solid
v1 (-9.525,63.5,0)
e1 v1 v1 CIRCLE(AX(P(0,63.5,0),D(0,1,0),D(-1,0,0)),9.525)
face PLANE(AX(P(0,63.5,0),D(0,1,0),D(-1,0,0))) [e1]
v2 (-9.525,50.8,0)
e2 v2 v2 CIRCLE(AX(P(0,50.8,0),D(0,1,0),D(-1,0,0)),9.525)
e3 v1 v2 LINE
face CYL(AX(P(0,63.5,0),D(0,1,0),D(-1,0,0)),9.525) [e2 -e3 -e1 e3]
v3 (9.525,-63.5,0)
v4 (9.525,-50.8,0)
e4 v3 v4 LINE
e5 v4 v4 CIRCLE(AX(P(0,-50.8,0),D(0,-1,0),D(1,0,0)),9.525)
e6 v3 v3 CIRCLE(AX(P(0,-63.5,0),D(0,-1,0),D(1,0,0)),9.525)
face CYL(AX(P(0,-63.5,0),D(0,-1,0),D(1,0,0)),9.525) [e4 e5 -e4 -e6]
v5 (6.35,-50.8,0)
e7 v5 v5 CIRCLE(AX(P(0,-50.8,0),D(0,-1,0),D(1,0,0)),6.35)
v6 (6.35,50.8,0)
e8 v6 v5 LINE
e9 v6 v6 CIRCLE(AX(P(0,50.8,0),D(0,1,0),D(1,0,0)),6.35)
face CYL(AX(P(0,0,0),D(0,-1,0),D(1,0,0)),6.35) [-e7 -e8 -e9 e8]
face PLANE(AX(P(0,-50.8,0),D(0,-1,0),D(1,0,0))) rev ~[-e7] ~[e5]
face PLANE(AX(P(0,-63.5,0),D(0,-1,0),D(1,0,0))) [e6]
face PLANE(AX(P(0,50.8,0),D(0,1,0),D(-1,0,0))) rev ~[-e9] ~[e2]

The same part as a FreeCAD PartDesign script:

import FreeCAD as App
import Part
import Sketcher
from FreeCAD import Vector
Q = App.Units.Quantity

doc = App.newDocument("Part")
body = doc.addObject("PartDesign::Body", "Body")

# Sketch on XZ plane
sketch1 = body.newObject("Sketcher::SketchObject", "Sketch")
sketch1.AttachmentSupport = (doc.getObject("XZ_Plane"), [""])
sketch1.MapMode = "FlatFace"
sketch1.addGeometry(Part.Circle(Vector(0, 0, 0), Vector(0, 0, 1), 6), False)
sketch1.addConstraint([
    Sketcher.Constraint("Coincident", 0, 3, -1, 1),
    Sketcher.Constraint("Diameter", 0, Q("0.5 in")),
])
pad1 = body.newObject("PartDesign::Pad", "Pad")
pad1.Profile = sketch1
pad1.Length = Q("5 in")
pad1.Midplane = True

# Sketch on XZ plane
sketch2 = body.newObject("Sketcher::SketchObject", "Sketch001")
sketch2.AttachmentSupport = (doc.getObject("XZ_Plane"), [""])
sketch2.MapMode = "FlatFace"
sketch2.AttachmentOffset = App.Placement(Vector(0, 0, -2.5 * 25.4), App.Rotation())
sketch2.addGeometry([
    Part.Circle(Vector(0, 0, 0), Vector(0, 0, 1), 10),
    Part.Circle(Vector(0, 0, 0), Vector(0, 0, 1), 6),
], False)
sketch2.addConstraint([
    Sketcher.Constraint("Coincident", 0, 3, -1, 1),
    Sketcher.Constraint("Coincident", 1, 3, -1, 1),
    Sketcher.Constraint("Diameter", 1, Q("0.5 in")),
    Sketcher.Constraint("Diameter", 0, Q("0.75 in")),
])
pad2 = body.newObject("PartDesign::Pad", "Pad001")
pad2.Profile = sketch2
pad2.Length = Q("0.5 in")

# Sketch on XZ plane
sketch3 = body.newObject("Sketcher::SketchObject", "Sketch002")
sketch3.AttachmentSupport = (doc.getObject("XZ_Plane"), [""])
sketch3.MapMode = "FlatFace"
sketch3.AttachmentOffset = App.Placement(Vector(0, 0, 2.5 * 25.4), App.Rotation())
sketch3.addGeometry([
    Part.Circle(Vector(0, 0, 0), Vector(0, 0, 1), 10),
    Part.Circle(Vector(0, 0, 0), Vector(0, 0, 1), 6),
], False)
sketch3.addConstraint([
    Sketcher.Constraint("Coincident", 0, 3, -1, 1),
    Sketcher.Constraint("Coincident", 1, 3, -1, 1),
    Sketcher.Constraint("Diameter", 1, Q("0.5 in")),
    Sketcher.Constraint("Diameter", 0, Q("0.75 in")),
])
pad3 = body.newObject("PartDesign::Pad", "Pad002")
pad3.Profile = sketch3
pad3.Length = Q("0.5 in")
pad3.Reversed = True

doc.recompute()
